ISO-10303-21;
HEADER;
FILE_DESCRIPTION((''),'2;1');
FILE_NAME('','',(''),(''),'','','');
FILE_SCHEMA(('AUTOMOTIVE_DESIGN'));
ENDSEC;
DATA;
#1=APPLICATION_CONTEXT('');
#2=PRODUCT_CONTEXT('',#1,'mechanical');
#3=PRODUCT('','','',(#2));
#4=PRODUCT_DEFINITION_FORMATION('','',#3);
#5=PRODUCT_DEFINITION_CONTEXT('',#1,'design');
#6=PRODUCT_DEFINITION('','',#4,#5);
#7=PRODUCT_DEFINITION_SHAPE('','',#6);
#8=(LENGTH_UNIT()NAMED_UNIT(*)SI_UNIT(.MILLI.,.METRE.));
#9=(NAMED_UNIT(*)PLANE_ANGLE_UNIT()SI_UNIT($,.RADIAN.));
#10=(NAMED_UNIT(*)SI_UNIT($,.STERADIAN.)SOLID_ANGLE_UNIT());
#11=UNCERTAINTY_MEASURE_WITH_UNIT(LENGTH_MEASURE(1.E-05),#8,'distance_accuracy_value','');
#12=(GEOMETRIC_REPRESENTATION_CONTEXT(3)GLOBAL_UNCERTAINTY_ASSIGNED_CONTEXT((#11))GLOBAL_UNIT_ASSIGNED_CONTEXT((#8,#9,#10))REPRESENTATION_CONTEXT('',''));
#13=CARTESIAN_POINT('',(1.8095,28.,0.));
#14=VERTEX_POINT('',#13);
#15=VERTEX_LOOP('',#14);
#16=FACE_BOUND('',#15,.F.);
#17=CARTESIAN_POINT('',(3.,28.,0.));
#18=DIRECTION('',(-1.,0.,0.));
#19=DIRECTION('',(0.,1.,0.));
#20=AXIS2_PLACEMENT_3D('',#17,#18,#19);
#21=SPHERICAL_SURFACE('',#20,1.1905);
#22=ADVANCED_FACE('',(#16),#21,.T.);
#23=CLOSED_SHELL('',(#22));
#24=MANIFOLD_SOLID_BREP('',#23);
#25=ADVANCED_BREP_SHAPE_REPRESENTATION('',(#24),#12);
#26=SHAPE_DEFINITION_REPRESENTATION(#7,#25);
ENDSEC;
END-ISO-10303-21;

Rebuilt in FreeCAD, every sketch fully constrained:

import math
import FreeCAD as App
import Part
import Sketcher
Q = App.Units.Quantity

doc = App.newDocument("Part")
params = doc.addObject("Spreadsheet::Sheet", "Params")
for row, (alias, value) in enumerate([
    ("revolution_angle", "360 deg"),
], start=1):
    params.set(f"A{row}", alias)
    params.set(f"B{row}", "=" + value)
    params.setAlias(f"B{row}", alias)

body = doc.addObject("PartDesign::Body", "Body")

sketch1 = body.newObject("Sketcher::SketchObject", "Sketch")
sketch1.AttachmentSupport = (doc.getObject("XY_Plane"), [""])
sketch1.MapMode = "FlatFace"
sketch1.addGeometry(Part.LineSegment(App.Vector(1.8095, 28, 0), App.Vector(4.1905, 28, 0)), False)
sketch1.addGeometry(Part.ArcOfCircle(Part.Circle(App.Vector(3, 28, 0), App.Vector(0, 0, 1), 1.1905), math.radians(0), math.radians(180)), False)
sketch1.addGeometry(Part.LineSegment(App.Vector(1.8095, 28, 0), App.Vector(4.1905, 28, 0)), True)
sketch1.addConstraint(Sketcher.Constraint("Coincident", 0, 1, 1, 2))
sketch1.addConstraint(Sketcher.Constraint("Coincident", 1, 1, 0, 2))
sketch1.addConstraint(Sketcher.Constraint("Horizontal", 0))
sketch1.addConstraint(Sketcher.Constraint("Horizontal", 2))
sketch1.addConstraint(Sketcher.Constraint("Coincident", 2, 1, 0, 1))
sketch1.addConstraint(Sketcher.Constraint("Horizontal", 1, 3, 0, 1))
sketch1.addConstraint(Sketcher.Constraint("Equal", 0, 2))
sketch1.addConstraint(Sketcher.Constraint("DistanceX", -1, 1, 1, 3, Q("3 mm")))
sketch1.addConstraint(Sketcher.Constraint("DistanceY", -1, 1, 1, 3, Q("28 mm")))
sketch1.addConstraint(Sketcher.Constraint("Radius", 1, Q("1.1905 mm")))
revolution = body.newObject("PartDesign::Revolution", "Revolution")
revolution.Profile = sketch1
revolution.ReferenceAxis = (sketch1, ["Axis0"])
revolution.setExpression("Angle", "Params.revolution_angle")

doc.recompute()
